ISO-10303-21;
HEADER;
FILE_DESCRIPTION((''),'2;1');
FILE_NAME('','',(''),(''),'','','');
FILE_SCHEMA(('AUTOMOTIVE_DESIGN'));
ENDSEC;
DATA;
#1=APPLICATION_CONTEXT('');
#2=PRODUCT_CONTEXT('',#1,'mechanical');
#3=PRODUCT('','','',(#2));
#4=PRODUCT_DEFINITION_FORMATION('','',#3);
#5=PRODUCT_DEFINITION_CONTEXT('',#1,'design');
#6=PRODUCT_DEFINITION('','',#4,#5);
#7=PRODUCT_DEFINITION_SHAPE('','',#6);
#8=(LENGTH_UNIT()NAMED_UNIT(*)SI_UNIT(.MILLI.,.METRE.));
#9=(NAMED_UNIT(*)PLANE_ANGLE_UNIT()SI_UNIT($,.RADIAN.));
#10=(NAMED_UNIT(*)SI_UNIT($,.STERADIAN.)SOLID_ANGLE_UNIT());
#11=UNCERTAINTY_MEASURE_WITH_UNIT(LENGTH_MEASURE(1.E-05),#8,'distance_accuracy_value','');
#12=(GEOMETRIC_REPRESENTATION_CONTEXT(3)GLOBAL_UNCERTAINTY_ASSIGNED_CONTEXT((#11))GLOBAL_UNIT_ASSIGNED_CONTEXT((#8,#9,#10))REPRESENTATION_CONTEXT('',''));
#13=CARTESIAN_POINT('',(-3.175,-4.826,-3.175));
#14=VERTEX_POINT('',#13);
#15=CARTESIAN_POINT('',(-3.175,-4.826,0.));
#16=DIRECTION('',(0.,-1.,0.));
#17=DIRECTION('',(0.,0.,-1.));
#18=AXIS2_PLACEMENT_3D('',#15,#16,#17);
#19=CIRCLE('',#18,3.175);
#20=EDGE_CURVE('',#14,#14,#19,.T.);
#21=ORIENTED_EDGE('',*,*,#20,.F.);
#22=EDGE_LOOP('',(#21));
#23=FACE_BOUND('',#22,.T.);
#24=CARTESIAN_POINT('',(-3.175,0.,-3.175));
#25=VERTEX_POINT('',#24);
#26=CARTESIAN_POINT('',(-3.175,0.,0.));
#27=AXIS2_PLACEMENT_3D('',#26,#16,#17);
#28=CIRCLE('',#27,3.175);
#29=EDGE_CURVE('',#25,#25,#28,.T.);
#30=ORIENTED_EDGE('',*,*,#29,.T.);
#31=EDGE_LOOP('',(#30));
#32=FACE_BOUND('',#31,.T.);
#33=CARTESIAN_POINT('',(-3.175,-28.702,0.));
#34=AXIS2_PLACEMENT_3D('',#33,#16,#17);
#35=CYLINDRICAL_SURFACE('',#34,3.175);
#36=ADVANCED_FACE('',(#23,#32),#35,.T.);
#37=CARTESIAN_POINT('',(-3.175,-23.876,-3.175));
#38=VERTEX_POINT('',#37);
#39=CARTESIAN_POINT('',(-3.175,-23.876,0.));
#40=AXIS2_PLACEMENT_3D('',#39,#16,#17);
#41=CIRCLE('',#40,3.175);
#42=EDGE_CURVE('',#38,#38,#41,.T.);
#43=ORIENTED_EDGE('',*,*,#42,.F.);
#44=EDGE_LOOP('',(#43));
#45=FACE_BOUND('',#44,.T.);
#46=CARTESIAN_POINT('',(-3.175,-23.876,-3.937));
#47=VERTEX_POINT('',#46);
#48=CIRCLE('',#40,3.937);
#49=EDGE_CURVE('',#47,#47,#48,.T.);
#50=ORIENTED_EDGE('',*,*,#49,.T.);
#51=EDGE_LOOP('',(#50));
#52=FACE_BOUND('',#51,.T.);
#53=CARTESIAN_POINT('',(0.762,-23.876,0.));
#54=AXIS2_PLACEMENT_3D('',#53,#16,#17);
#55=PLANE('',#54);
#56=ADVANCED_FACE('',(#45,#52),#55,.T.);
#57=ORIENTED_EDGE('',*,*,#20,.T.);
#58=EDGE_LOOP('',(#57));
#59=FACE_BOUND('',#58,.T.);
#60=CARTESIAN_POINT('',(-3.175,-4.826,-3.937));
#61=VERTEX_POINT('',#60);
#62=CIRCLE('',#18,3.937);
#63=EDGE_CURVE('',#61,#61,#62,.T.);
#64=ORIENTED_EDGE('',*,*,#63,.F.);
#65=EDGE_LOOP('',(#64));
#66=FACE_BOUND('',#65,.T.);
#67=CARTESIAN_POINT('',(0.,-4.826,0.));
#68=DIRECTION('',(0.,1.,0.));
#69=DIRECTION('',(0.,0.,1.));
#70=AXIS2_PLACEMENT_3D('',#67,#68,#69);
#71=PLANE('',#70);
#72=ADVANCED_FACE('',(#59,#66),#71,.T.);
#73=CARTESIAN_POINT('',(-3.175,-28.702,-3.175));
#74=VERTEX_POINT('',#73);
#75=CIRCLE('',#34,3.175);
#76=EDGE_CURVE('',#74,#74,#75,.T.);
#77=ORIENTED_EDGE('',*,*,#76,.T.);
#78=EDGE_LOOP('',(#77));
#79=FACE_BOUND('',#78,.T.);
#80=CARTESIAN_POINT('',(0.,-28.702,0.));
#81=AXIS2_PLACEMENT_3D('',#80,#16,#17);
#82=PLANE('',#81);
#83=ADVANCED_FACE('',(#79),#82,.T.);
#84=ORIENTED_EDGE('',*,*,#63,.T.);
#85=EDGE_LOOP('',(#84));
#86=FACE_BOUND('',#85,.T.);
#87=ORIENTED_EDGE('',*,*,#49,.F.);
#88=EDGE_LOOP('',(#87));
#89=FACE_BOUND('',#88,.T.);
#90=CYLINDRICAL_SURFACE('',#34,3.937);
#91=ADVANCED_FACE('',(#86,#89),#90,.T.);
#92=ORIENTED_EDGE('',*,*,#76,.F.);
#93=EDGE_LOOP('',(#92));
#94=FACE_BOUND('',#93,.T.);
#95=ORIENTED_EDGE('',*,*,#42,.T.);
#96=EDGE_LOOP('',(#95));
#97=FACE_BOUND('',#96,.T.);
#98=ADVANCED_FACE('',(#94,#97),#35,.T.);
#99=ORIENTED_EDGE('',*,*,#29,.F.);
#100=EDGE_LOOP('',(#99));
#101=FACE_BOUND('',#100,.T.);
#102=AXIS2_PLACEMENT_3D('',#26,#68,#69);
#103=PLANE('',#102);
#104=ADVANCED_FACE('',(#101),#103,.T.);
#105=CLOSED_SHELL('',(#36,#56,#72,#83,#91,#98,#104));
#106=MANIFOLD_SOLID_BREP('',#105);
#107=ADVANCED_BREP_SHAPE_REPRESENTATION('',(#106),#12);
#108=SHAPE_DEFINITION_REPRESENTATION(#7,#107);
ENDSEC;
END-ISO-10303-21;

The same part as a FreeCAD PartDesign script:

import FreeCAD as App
import Part
import Sketcher

V = App.Vector
Q = App.Units.Quantity

doc = App.newDocument("Part")
body = doc.addObject("PartDesign::Body", "Body")

# Sketch on XY plane
sketch1 = body.newObject("Sketcher::SketchObject", "Sketch")
sketch1.AttachmentSupport = (doc.getObject("XY_Plane"), [""])
sketch1.MapMode = "FlatFace"
sketch1.addGeometry([
    Part.LineSegment(V(0, -4.8, 0), V(0, 0, 0)),  # 0
    Part.LineSegment(V(0, 0, 0), V(-3.2, 0, 0)),  # 1
    Part.LineSegment(V(-3.2, 0, 0), V(-3.2, -28.7, 0)),  # 2
    Part.LineSegment(V(-3.2, -28.7, 0), V(0, -28.7, 0)),  # 3
    Part.LineSegment(V(0, -28.7, 0), V(0, -23.9, 0)),  # 4
    Part.LineSegment(V(0, -23.9, 0), V(0.8, -23.9, 0)),  # 5
    Part.LineSegment(V(0.8, -23.9, 0), V(0.8, -4.8, 0)),  # 6
    Part.LineSegment(V(0.8, -4.8, 0), V(0, -4.8, 0)),  # 7
], False)
sketch1.addGeometry(Part.LineSegment(V(-3.2, -28.7, 0), V(-3.2, 0, 0)), True)  # axis
sketch1.addConstraint([
    Sketcher.Constraint("Coincident", 0, 2, 1, 1),
    Sketcher.Constraint("Coincident", 1, 2, 2, 1),
    Sketcher.Constraint("Coincident", 2, 2, 3, 1),
    Sketcher.Constraint("Coincident", 3, 2, 4, 1),
    Sketcher.Constraint("Coincident", 4, 2, 5, 1),
    Sketcher.Constraint("Coincident", 5, 2, 6, 1),
    Sketcher.Constraint("Coincident", 6, 2, 7, 1),
    Sketcher.Constraint("Coincident", 7, 2, 0, 1),
    Sketcher.Constraint("Vertical", 0),
    Sketcher.Constraint("Horizontal", 1),
    Sketcher.Constraint("Vertical", 2),
    Sketcher.Constraint("Horizontal", 3),
    Sketcher.Constraint("Vertical", 4),
    Sketcher.Constraint("Horizontal", 5),
    Sketcher.Constraint("Vertical", 6),
    Sketcher.Constraint("Horizontal", 7),
    Sketcher.Constraint("Vertical", 8),
    Sketcher.Constraint("Coincident", 0, 2, -1, 1),
    Sketcher.Constraint("Coincident", 8, 1, 2, 2),
    Sketcher.Constraint("PointOnObject", 3, 2, -2),
    Sketcher.Constraint("PointOnObject", 8, 2, -1),
    Sketcher.Constraint("Equal", 0, 4),
    Sketcher.Constraint("DistanceX", 5, 1, 5, 2, Q("0.03 in")),
    Sketcher.Constraint("DistanceY", 0, 1, 0, 2, Q("0.19 in")),
    Sketcher.Constraint("DistanceY", 2, 2, 2, 1, Q("1.13 in")),
    Sketcher.Constraint("DistanceX", 1, 2, 1, 1, Q("0.125 in")),
])
revolution = body.newObject("PartDesign::Revolution", "Revolution")
revolution.Profile = sketch1
revolution.ReferenceAxis = (sketch1, ["Axis0"])
revolution.Angle = 360

doc.recompute()
